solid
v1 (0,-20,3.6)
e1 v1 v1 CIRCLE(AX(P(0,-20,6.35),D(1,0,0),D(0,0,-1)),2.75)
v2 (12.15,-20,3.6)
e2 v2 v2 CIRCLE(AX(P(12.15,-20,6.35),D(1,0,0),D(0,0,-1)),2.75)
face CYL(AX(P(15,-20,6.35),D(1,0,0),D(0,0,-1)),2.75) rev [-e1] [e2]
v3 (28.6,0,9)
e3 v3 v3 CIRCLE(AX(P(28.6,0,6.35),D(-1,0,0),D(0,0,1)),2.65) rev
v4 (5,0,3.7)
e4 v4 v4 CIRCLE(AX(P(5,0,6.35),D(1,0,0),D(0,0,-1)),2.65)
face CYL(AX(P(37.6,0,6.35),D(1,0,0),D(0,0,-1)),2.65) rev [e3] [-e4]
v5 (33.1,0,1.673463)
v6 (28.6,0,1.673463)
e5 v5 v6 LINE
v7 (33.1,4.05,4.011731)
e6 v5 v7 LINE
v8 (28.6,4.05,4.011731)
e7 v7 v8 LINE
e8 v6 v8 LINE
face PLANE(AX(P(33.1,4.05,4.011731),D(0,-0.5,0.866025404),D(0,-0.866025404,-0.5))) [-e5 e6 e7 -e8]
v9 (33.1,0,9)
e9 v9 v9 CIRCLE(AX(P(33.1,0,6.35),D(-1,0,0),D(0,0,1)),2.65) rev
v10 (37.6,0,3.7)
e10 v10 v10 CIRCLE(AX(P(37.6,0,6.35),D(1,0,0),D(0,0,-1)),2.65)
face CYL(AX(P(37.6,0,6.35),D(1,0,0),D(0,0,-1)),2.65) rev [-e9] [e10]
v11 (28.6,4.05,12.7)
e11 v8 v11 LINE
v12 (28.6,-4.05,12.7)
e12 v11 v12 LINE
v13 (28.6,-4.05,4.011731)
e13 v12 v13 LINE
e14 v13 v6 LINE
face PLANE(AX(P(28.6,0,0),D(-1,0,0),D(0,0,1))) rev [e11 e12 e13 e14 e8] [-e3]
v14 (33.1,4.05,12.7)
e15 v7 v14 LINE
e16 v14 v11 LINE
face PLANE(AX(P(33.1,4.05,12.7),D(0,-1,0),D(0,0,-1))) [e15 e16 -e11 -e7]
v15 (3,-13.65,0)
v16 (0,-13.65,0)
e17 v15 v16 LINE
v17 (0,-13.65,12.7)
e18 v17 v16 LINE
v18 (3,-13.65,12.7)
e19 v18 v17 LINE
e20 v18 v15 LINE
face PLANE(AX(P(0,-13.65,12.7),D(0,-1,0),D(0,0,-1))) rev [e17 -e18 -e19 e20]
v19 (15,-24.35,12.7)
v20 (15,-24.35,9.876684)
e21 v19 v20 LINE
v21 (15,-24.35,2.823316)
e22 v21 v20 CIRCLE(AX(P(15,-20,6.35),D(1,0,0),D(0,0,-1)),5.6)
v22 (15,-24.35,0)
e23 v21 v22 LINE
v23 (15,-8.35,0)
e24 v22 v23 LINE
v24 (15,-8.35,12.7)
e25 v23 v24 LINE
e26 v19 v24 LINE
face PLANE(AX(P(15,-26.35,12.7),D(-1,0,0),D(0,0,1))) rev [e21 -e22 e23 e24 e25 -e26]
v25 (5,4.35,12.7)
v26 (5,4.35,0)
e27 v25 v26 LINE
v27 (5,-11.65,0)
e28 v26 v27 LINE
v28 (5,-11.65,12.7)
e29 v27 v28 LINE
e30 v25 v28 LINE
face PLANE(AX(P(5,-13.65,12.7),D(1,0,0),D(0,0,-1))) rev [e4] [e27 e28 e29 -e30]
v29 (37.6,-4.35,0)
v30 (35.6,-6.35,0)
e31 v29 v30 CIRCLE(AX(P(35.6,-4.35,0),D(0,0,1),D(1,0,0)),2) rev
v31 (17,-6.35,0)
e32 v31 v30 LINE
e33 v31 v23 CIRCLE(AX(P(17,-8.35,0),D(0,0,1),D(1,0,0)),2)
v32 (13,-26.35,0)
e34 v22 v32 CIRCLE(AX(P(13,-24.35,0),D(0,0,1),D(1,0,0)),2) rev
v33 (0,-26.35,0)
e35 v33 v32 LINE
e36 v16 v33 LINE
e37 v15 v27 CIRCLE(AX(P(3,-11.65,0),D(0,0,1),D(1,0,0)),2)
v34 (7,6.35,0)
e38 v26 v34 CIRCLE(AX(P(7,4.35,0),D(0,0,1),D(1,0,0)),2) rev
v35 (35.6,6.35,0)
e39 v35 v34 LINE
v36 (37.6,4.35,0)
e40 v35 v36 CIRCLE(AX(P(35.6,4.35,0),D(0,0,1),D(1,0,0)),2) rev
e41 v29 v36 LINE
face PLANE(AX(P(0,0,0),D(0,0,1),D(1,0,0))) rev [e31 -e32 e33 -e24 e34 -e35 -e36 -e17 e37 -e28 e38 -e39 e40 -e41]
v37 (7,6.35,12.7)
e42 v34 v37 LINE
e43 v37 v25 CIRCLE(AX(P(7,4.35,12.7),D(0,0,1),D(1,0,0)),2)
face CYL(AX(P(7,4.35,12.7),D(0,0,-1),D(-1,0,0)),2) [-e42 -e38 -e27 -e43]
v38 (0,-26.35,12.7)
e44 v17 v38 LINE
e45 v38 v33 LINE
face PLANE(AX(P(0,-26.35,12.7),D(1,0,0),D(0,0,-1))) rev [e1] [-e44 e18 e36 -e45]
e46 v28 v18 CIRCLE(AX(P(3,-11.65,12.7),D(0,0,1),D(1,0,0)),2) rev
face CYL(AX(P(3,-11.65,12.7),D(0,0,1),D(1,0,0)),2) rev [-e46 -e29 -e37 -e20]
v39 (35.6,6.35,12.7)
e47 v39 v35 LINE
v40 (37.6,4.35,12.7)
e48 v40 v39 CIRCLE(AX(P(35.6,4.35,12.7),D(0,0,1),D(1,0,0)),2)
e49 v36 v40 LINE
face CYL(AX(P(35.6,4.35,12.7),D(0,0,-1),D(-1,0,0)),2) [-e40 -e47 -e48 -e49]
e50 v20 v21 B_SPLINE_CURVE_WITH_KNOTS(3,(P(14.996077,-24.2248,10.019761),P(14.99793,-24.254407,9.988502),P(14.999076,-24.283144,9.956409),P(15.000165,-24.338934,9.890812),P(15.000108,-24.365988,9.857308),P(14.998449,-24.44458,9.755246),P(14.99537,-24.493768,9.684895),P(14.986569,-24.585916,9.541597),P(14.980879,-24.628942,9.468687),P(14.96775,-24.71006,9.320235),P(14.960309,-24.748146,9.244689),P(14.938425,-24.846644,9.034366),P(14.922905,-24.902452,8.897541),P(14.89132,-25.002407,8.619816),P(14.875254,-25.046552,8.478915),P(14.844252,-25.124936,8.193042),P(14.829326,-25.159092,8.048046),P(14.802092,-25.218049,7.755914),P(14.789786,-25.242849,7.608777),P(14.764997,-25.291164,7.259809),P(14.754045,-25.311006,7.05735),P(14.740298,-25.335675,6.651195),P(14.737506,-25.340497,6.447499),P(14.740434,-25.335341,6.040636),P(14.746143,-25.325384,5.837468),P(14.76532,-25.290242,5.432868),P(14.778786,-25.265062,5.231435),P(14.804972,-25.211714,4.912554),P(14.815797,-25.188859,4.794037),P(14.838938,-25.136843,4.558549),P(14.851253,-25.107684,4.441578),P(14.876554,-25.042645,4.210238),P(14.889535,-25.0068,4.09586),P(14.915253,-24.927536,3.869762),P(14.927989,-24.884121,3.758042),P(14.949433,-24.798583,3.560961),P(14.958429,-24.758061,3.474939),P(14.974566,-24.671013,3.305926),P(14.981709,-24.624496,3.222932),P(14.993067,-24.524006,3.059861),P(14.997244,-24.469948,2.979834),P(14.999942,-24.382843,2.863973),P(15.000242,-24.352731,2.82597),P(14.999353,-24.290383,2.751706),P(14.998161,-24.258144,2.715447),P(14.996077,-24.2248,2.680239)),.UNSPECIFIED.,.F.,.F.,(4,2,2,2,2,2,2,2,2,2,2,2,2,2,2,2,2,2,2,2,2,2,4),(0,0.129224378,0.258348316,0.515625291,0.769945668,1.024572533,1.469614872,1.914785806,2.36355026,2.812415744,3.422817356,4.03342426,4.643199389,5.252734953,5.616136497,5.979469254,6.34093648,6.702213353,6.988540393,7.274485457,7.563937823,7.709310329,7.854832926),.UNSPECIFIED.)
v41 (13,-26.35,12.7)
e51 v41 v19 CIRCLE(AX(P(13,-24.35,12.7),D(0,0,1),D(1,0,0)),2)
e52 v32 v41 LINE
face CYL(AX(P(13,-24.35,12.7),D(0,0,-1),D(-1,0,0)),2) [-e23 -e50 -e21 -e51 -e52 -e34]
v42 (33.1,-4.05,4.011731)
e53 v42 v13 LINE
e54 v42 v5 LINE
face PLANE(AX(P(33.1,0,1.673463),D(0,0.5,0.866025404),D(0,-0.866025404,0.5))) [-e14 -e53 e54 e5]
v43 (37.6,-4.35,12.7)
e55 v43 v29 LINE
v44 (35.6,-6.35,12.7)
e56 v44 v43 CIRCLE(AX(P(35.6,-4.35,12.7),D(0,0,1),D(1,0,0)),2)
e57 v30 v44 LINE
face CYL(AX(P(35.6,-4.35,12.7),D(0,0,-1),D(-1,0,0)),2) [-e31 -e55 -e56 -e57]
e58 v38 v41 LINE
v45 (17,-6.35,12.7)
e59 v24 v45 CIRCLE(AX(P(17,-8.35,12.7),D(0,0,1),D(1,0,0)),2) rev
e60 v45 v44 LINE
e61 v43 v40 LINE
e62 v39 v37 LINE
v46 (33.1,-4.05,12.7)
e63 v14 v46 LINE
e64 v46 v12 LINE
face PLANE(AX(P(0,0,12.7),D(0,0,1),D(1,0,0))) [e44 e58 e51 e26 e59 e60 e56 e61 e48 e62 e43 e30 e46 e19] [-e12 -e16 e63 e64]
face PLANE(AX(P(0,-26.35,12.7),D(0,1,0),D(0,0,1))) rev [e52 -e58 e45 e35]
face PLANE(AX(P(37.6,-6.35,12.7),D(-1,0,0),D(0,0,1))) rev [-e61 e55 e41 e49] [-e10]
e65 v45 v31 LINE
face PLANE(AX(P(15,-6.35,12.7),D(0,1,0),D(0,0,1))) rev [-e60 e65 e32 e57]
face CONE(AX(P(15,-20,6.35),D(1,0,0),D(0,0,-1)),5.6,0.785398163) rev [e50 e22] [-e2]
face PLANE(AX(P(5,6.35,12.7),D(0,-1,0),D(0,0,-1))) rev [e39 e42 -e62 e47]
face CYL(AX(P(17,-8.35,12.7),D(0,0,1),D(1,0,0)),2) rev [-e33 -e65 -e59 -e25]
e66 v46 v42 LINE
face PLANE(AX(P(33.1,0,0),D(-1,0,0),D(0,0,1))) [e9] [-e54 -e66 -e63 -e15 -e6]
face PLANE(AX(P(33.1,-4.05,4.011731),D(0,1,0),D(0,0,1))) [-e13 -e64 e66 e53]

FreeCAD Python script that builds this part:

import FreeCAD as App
import Part
import Sketcher

V = App.Vector
Q = App.Units.Quantity


def edges_at(feature, points):
    """Names of the edges that pass closest to the given points."""
    edges = feature.Shape.Edges
    near = lambda p: min(range(len(edges)), key=lambda i: edges[i].distToShape(Part.Vertex(*p))[0])
    return sorted({f"Edge{near(p) + 1}" for p in points})


def add_polygon(sketch, points):
    """Adds a closed chain of lines whose ends are joined by coincident constraints."""
    first, n = sketch.GeometryCount, len(points)
    for a, b in zip(points, points[1:] + points[:1]):
        sketch.addGeometry(Part.LineSegment(App.Vector(*a, 0), App.Vector(*b, 0)), False)
    for i in range(n):
        sketch.addConstraint(Sketcher.Constraint("Coincident", first + i, 2, first + (i + 1) % n, 1))

doc = App.newDocument("Part")
body = doc.addObject("PartDesign::Body", "Body")

sketch1 = body.newObject("Sketcher::SketchObject", "Sketch")
sketch1.AttachmentSupport = (doc.getObject("XY_Plane"), [""])
sketch1.MapMode = "FlatFace"
add_polygon(sketch1, [(0, -14), (0, -26), (15, -26), (15, -6), (38, -6), (38, 6), (5, 6), (5, -14)])
sketch1.addConstraint([
    Sketcher.Constraint("Vertical", 0),
    Sketcher.Constraint("Horizontal", 1),
    Sketcher.Constraint("Vertical", 2),
    Sketcher.Constraint("Horizontal", 3),
    Sketcher.Constraint("Vertical", 4),
    Sketcher.Constraint("Horizontal", 5),
    Sketcher.Constraint("Vertical", 6),
    Sketcher.Constraint("Horizontal", 7),
    Sketcher.Constraint("PointOnObject", 0, 2, -2),
    Sketcher.Constraint("Equal", 0, 4),
    Sketcher.Constraint("DistanceX", 1, 1, 1, 2, 15.0),
    Sketcher.Constraint("DistanceX", 7, 2, 7, 1, 5.0),
    Sketcher.Constraint("DistanceY", 2, 1, 2, 2, 20.0),
    Sketcher.Constraint("DistanceX", 3, 1, 3, 2, 22.6),
    Sketcher.Constraint("DistanceY", 0, 2, 0, 1, 12.7),
    Sketcher.Constraint("DistanceY", 0, 2, -1, 1, 26.35),
])
pad1 = body.newObject("PartDesign::Pad", "Pad")
pad1.Profile = sketch1
pad1.Length = 12.7
doc.recompute()

fillet = body.newObject("PartDesign::Fillet", "Fillet")
fillet.Base = (pad1, edges_at(pad1, [
    (5, -13.65, 6.35),
    (5, 6.35, 6.35),
    (37.6, 6.35, 6.35),
    (37.6, -6.35, 6.35),
    (15, -6.35, 6.35),
    (15, -26.35, 6.35),
]))
fillet.Radius = 2

sketch2 = body.newObject("Sketcher::SketchObject", "Sketch001")
sketch2.AttachmentSupport = (doc.getObject("YZ_Plane"), [""])
sketch2.MapMode = "FlatFace"
sketch2.AttachmentOffset = App.Placement(V(0, 0, 15), App.Rotation())
sketch2.addGeometry(Part.Circle(V(-20, 6.3, 0), V(0, 0, 1), 2.8), False)
sketch2.addConstraint([
    Sketcher.Constraint("Diameter", 0, 5.5),
    Sketcher.Constraint("DistanceX", 0, 3, -1, 1, 20.0),
    Sketcher.Constraint("DistanceY", -1, 1, 0, 3, 6.35),
])
doc.recompute()
hole = body.newObject("PartDesign::Hole", "Hole")
hole.Profile = sketch2
hole.ThreadType = "None"
hole.Diameter = 5.5
hole.DepthType = "ThroughAll"
hole.HoleCutType = "Countersink"
hole.HoleCutDiameter = 11.2
hole.HoleCutCountersinkAngle = 90

sketch3 = body.newObject("Sketcher::SketchObject", "Sketch002")
sketch3.AttachmentSupport = (doc.getObject("YZ_Plane"), [""])
sketch3.MapMode = "FlatFace"
sketch3.AttachmentOffset = App.Placement(V(0, 0, 37.6), App.Rotation())
sketch3.addGeometry(Part.Circle(V(0, 6.3, 0), V(0, 0, 1), 2.6), False)
sketch3.addConstraint([
    Sketcher.Constraint("PointOnObject", 0, 3, -2),
    Sketcher.Constraint("Diameter", 0, 5.3),
    Sketcher.Constraint("DistanceY", -1, 1, 0, 3, 6.35),
])
doc.recompute()
hole2 = body.newObject("PartDesign::Hole", "Hole001")
hole2.Profile = sketch3
hole2.ThreadType = "None"
hole2.Diameter = 5.3
hole2.DepthType = "ThroughAll"

sketch4 = body.newObject("Sketcher::SketchObject", "Sketch003")
sketch4.AttachmentSupport = (doc.getObject("YZ_Plane"), [""])
sketch4.MapMode = "FlatFace"
sketch4.AttachmentOffset = App.Placement(V(0, 0, 28.6), App.Rotation())
add_polygon(sketch4, [(4, 4), (4, 12.7), (-4, 12.7), (-4, 4), (0, 1.7)])
sketch4.addConstraint([
    Sketcher.Constraint("Vertical", 0),
    Sketcher.Constraint("Horizontal", 1),
    Sketcher.Constraint("Vertical", 2),
    Sketcher.Constraint("Symmetric", 2, 2, 4, 2, -2),
    Sketcher.Constraint("PointOnObject", 3, 2, -2),
    Sketcher.Constraint("Angle", 3, Q("-30 deg")),
    Sketcher.Constraint("DistanceX", 1, 2, 1, 1, 8.1),
    Sketcher.Constraint("DistanceY", -1, 1, 0, 2, 12.7),
    Sketcher.Constraint("DistanceY", 0, 1, 0, 2, 8.688269),
])
pocket1 = body.newObject("PartDesign::Pocket", "Pocket")
pocket1.Profile = sketch4
pocket1.Length = 4.5
pocket1.Reversed = True

doc.recompute()
